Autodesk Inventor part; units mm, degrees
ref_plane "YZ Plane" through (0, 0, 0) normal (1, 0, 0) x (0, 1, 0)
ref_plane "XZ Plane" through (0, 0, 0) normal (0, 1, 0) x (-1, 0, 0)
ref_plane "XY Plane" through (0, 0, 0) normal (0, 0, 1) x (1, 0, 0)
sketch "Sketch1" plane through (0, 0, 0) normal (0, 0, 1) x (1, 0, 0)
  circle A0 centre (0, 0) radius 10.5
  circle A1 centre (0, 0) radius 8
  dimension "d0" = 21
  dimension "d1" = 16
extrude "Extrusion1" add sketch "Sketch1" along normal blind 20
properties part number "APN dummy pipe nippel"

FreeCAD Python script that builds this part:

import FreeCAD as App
import Part
import Sketcher
from FreeCAD import Vector
Q = App.Units.Quantity

doc = App.newDocument("Part")
body = doc.addObject("PartDesign::Body", "Body")

sketch1 = body.newObject("Sketcher::SketchObject", "Sketch")
sketch1.AttachmentSupport = (doc.getObject("XY_Plane"), [""])
sketch1.MapMode = "FlatFace"
sketch1.addGeometry([
    Part.Circle(Vector(0, 0, 0), Vector(0, 0, 1), 10),
    Part.Circle(Vector(0, 0, 0), Vector(0, 0, 1), 8),
], False)
sketch1.addConstraint([
    Sketcher.Constraint("Coincident", 0, 3, -1, 1),
    Sketcher.Constraint("Coincident", 1, 3, -1, 1),
    Sketcher.Constraint("Diameter", 0, Q("21 mm")),
    Sketcher.Constraint("Diameter", 1, Q("16 mm")),
])
pad1 = body.newObject("PartDesign::Pad", "Pad")
pad1.Profile = sketch1
pad1.Length = 20

doc.recompute()
